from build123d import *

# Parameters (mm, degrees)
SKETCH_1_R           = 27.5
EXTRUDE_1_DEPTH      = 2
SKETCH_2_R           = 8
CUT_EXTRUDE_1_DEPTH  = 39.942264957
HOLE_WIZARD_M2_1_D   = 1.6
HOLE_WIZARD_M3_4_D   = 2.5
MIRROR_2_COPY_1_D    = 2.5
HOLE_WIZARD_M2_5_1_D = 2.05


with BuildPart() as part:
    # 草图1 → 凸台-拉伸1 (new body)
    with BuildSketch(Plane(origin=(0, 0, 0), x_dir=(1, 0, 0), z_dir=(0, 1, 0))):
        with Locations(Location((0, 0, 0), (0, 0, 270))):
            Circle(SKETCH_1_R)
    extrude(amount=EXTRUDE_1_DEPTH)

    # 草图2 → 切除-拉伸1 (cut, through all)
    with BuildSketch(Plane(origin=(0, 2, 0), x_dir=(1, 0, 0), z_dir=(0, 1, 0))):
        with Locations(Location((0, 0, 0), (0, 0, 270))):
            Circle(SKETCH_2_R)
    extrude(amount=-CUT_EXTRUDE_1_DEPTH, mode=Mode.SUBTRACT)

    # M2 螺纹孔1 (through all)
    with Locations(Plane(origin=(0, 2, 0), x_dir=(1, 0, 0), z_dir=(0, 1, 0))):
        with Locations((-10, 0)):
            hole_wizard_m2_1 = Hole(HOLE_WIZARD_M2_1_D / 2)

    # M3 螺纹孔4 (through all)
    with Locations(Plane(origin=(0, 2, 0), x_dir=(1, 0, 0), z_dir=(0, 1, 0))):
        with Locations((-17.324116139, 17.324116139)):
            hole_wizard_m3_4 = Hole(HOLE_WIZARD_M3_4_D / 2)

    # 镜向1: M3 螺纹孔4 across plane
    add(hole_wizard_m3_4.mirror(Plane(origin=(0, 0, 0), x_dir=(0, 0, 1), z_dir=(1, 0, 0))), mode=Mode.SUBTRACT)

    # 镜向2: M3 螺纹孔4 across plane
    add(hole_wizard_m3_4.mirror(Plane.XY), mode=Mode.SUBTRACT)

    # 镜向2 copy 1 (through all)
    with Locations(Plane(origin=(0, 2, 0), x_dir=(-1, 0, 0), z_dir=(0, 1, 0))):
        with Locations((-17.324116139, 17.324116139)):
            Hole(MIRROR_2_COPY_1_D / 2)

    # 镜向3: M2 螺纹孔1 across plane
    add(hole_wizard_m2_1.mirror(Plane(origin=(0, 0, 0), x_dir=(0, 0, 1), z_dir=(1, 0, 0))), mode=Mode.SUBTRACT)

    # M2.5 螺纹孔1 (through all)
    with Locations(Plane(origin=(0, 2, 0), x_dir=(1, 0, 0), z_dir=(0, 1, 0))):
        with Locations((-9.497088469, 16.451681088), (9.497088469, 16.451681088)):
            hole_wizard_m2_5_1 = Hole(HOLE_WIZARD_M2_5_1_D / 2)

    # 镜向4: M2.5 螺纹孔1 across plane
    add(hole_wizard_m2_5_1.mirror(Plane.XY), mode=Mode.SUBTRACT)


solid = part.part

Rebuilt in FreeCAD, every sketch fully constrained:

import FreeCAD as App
import Part
import Sketcher
from FreeCAD import Vector
Q = App.Units.Quantity

doc = App.newDocument("Part")
body = doc.addObject("PartDesign::Body", "Body")

# Sketch on XZ plane
sketch1 = body.newObject("Sketcher::SketchObject", "Sketch")
sketch1.AttachmentSupport = (doc.getObject("XZ_Plane"), [""])
sketch1.MapMode = "FlatFace"
sketch1.addGeometry(Part.Circle(Vector(0, 0, 0), Vector(0, 0, 1), 28), False)
sketch1.addConstraint([
    Sketcher.Constraint("Coincident", 0, 3, -1, 1),
    Sketcher.Constraint("Diameter", 0, Q("55 mm")),
])
pad1 = body.newObject("PartDesign::Pad", "Pad")
pad1.Profile = sketch1
pad1.Length = 2
pad1.Reversed = True

# Sketch on XZ plane
sketch2 = body.newObject("Sketcher::SketchObject", "Sketch001")
sketch2.AttachmentSupport = (doc.getObject("XZ_Plane"), [""])
sketch2.MapMode = "FlatFace"
sketch2.AttachmentOffset = App.Placement(Vector(0, 0, -2), App.Rotation())
sketch2.addGeometry(Part.Circle(Vector(0, 0, 0), Vector(0, 0, 1), 8), False)
sketch2.addConstraint([
    Sketcher.Constraint("Coincident", 0, 3, -1, 1),
    Sketcher.Constraint("Diameter", 0, Q("16 mm")),
])
pocket1 = body.newObject("PartDesign::Pocket", "Pocket")
pocket1.Profile = sketch2
pocket1.Type = "ThroughAll"
pocket1.Reversed = True

# Sketch on XZ plane
sketch3 = body.newObject("Sketcher::SketchObject", "Sketch002")
sketch3.AttachmentSupport = (doc.getObject("XZ_Plane"), [""])
sketch3.MapMode = "FlatFace"
sketch3.AttachmentOffset = App.Placement(Vector(0, 0, -2), App.Rotation())
sketch3.addGeometry(Part.Circle(Vector(-10, 0, 0), Vector(0, 0, 1), 0.8), False)
sketch3.addConstraint([
    Sketcher.Constraint("PointOnObject", 0, 3, -1),
    Sketcher.Constraint("Diameter", 0, Q("1.6 mm")),
    Sketcher.Constraint("DistanceX", 0, 3, -1, 1, Q("10 mm")),
])
doc.recompute()
hole = body.newObject("PartDesign::Hole", "Hole")
hole.Profile = sketch3
hole.ThreadType = "None"
hole.Diameter = 1.6
hole.DepthType = "ThroughAll"
hole.Reversed = True

# Sketch on XZ plane
sketch4 = body.newObject("Sketcher::SketchObject", "Sketch003")
sketch4.AttachmentSupport = (doc.getObject("XZ_Plane"), [""])
sketch4.MapMode = "FlatFace"
sketch4.AttachmentOffset = App.Placement(Vector(0, 0, -2), App.Rotation())
sketch4.addGeometry(Part.Circle(Vector(-17.3, -17.3, 0), Vector(0, 0, 1), 1.2), False)
sketch4.addConstraint([
    Sketcher.Constraint("Diameter", 0, Q("2.5 mm")),
    Sketcher.Constraint("DistanceX", 0, 3, -1, 1, Q("17.324116 mm")),
    Sketcher.Constraint("DistanceY", 0, 3, -1, 1, Q("17.324116 mm")),
])
doc.recompute()
hole2 = body.newObject("PartDesign::Hole", "Hole001")
hole2.Profile = sketch4
hole2.ThreadType = "None"
hole2.Diameter = 2.5
hole2.DepthType = "ThroughAll"
hole2.Reversed = True
doc.recompute()

mirrored = body.newObject("PartDesign::Mirrored", "Mirrored")
mirrored.Originals = [hole2]
mirrored.MirrorPlane = (doc.getObject("YZ_Plane"), [""])
body.Tip = mirrored
doc.recompute()

mirrored2 = body.newObject("PartDesign::Mirrored", "Mirrored001")
mirrored2.Originals = [hole2]
mirrored2.MirrorPlane = (doc.getObject("XY_Plane"), [""])
body.Tip = mirrored2

# Sketch on XZ plane
sketch5 = body.newObject("Sketcher::SketchObject", "Sketch004")
sketch5.AttachmentSupport = (doc.getObject("XZ_Plane"), [""])
sketch5.MapMode = "FlatFace"
sketch5.AttachmentOffset = App.Placement(Vector(0, 0, -2), App.Rotation())
sketch5.addGeometry(Part.Circle(Vector(17.3, 17.3, 0), Vector(0, 0, 1), 1.2), False)
sketch5.addConstraint([
    Sketcher.Constraint("Diameter", 0, Q("2.5 mm")),
    Sketcher.Constraint("DistanceX", -1, 1, 0, 3, Q("17.324116 mm")),
    Sketcher.Constraint("DistanceY", -1, 1, 0, 3, Q("17.324116 mm")),
])
doc.recompute()
hole3 = body.newObject("PartDesign::Hole", "Hole002")
hole3.Profile = sketch5
hole3.ThreadType = "None"
hole3.Diameter = 2.5
hole3.DepthType = "ThroughAll"
hole3.Reversed = True
doc.recompute()

mirrored3 = body.newObject("PartDesign::Mirrored", "Mirrored002")
mirrored3.Originals = [hole]
mirrored3.MirrorPlane = (doc.getObject("YZ_Plane"), [""])
body.Tip = mirrored3

# Sketch on XZ plane
sketch6 = body.newObject("Sketcher::SketchObject", "Sketch005")
sketch6.AttachmentSupport = (doc.getObject("XZ_Plane"), [""])
sketch6.MapMode = "FlatFace"
sketch6.AttachmentOffset = App.Placement(Vector(0, 0, -2), App.Rotation())
sketch6.addGeometry([
    Part.Circle(Vector(-9.5, -16.5, 0), Vector(0, 0, 1), 1),
    Part.Circle(Vector(9.5, -16.5, 0), Vector(0, 0, 1), 1),
], False)
sketch6.addConstraint([
    Sketcher.Constraint("Equal", 0, 1),
    Sketcher.Constraint("Symmetric", 0, 3, 1, 3, -2),
    Sketcher.Constraint("Diameter", 0, Q("2.05 mm")),
    Sketcher.Constraint("DistanceX", 0, 3, -1, 1, Q("9.497088 mm")),
    Sketcher.Constraint("DistanceY", 0, 3, -1, 1, Q("16.451681 mm")),
])
doc.recompute()
hole4 = body.newObject("PartDesign::Hole", "Hole003")
hole4.Profile = sketch6
hole4.ThreadType = "None"
hole4.Diameter = 2.05
hole4.DepthType = "ThroughAll"
hole4.Reversed = True
doc.recompute()

mirrored4 = body.newObject("PartDesign::Mirrored", "Mirrored003")
mirrored4.Originals = [hole4]
mirrored4.MirrorPlane = (doc.getObject("XY_Plane"), [""])
body.Tip = mirrored4

doc.recompute()
